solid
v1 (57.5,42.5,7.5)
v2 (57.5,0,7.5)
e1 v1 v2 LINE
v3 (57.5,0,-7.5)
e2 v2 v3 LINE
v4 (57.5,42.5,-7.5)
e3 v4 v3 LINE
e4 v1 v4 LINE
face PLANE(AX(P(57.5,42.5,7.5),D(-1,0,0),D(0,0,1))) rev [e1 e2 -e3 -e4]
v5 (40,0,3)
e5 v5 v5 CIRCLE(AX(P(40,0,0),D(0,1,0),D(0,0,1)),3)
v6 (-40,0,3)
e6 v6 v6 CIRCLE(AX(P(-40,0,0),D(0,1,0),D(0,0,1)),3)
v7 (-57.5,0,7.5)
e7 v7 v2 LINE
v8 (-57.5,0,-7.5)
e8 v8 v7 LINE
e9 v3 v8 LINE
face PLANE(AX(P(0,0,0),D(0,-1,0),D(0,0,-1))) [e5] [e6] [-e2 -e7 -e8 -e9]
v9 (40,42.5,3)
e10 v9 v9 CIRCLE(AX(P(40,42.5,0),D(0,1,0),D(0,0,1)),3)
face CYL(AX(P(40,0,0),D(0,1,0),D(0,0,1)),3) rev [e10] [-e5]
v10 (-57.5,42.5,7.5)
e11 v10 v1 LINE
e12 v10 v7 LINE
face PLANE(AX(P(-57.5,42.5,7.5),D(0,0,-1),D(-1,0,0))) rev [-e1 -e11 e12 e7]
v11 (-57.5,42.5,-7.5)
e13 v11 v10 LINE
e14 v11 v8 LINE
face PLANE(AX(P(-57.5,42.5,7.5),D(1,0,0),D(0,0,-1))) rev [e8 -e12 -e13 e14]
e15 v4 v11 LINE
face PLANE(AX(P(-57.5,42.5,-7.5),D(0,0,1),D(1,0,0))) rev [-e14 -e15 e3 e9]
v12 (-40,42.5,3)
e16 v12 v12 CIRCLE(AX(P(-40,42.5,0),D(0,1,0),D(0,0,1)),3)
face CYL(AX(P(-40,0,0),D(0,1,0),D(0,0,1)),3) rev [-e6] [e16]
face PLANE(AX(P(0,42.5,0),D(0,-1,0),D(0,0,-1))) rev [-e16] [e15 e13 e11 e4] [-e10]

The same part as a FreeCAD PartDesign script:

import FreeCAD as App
import Part
import Sketcher
from FreeCAD import Vector

doc = App.newDocument("Part")
params = doc.addObject("Spreadsheet::Sheet", "Params")
for row, (alias, value) in enumerate([
    ("sketch1_width", "115 mm"),
    ("sketch1_height", "15 mm"),
    ("pad1_length", "42.5 mm"),
    ("sketch2_diameter", "6 mm"),
    ("pocket1_length", "42.5 mm"),
], start=1):
    params.set(f"A{row}", alias)
    params.set(f"B{row}", "=" + value)
    params.setAlias(f"B{row}", alias)

body = doc.addObject("PartDesign::Body", "Body")

sketch1 = body.newObject("Sketcher::SketchObject", "Sketch")
sketch1.AttachmentSupport = (doc.getObject("XZ_Plane"), [""])
sketch1.MapMode = "FlatFace"
sketch1.addGeometry([
    Part.LineSegment(Vector(-58, -8, 0), Vector(-58, 8, 0)),
    Part.LineSegment(Vector(-58, 8, 0), Vector(58, 8, 0)),
    Part.LineSegment(Vector(58, 8, 0), Vector(58, -8, 0)),
    Part.LineSegment(Vector(58, -8, 0), Vector(-58, -8, 0)),
], False)
sketch1.addConstraint([
    Sketcher.Constraint("Coincident", 0, 2, 1, 1),
    Sketcher.Constraint("Coincident", 1, 2, 2, 1),
    Sketcher.Constraint("Coincident", 2, 2, 3, 1),
    Sketcher.Constraint("Coincident", 3, 2, 0, 1),
    Sketcher.Constraint("Vertical", 0),
    Sketcher.Constraint("Horizontal", 1),
    Sketcher.Constraint("Vertical", 2),
    Sketcher.Constraint("Horizontal", 3),
    Sketcher.Constraint("Symmetric", 0, 2, 2, 2, -1, 1),
    Sketcher.Constraint("DistanceX", 1, 1, 1, 2, 115.0),
    Sketcher.Constraint("DistanceY", 0, 1, 0, 2, 15.0),
])
sketch1.setExpression("Constraints[9]", "Params.sketch1_width")
sketch1.setExpression("Constraints[10]", "Params.sketch1_height")
pad1 = body.newObject("PartDesign::Pad", "Pad")
pad1.Profile = sketch1
pad1.setExpression("Length", "Params.pad1_length")
pad1.Reversed = True

sketch2 = body.newObject("Sketcher::SketchObject", "Sketch001")
sketch2.AttachmentSupport = (doc.getObject("XZ_Plane"), [""])
sketch2.MapMode = "FlatFace"
sketch2.AttachmentOffset = App.Placement(Vector(0, 0, -42.5), App.Rotation())
sketch2.addGeometry([
    Part.Circle(Vector(-40, 0, 0), Vector(0, 0, 1), 3),
    Part.Circle(Vector(40, 0, 0), Vector(0, 0, 1), 3),
], False)
sketch2.addConstraint([
    Sketcher.Constraint("Equal", 0, 1),
    Sketcher.Constraint("Symmetric", 0, 3, 1, 3, -1, 1),
    Sketcher.Constraint("PointOnObject", 0, 3, -1),
    Sketcher.Constraint("Diameter", 0, 6.0),
    Sketcher.Constraint("DistanceX", 0, 3, -1, 1, 40.0),
])
sketch2.setExpression("Constraints[3]", "Params.sketch2_diameter")
pocket1 = body.newObject("PartDesign::Pocket", "Pocket")
pocket1.Profile = sketch2
pocket1.setExpression("Length", "Params.pocket1_length")
pocket1.Reversed = True

doc.recompute()
